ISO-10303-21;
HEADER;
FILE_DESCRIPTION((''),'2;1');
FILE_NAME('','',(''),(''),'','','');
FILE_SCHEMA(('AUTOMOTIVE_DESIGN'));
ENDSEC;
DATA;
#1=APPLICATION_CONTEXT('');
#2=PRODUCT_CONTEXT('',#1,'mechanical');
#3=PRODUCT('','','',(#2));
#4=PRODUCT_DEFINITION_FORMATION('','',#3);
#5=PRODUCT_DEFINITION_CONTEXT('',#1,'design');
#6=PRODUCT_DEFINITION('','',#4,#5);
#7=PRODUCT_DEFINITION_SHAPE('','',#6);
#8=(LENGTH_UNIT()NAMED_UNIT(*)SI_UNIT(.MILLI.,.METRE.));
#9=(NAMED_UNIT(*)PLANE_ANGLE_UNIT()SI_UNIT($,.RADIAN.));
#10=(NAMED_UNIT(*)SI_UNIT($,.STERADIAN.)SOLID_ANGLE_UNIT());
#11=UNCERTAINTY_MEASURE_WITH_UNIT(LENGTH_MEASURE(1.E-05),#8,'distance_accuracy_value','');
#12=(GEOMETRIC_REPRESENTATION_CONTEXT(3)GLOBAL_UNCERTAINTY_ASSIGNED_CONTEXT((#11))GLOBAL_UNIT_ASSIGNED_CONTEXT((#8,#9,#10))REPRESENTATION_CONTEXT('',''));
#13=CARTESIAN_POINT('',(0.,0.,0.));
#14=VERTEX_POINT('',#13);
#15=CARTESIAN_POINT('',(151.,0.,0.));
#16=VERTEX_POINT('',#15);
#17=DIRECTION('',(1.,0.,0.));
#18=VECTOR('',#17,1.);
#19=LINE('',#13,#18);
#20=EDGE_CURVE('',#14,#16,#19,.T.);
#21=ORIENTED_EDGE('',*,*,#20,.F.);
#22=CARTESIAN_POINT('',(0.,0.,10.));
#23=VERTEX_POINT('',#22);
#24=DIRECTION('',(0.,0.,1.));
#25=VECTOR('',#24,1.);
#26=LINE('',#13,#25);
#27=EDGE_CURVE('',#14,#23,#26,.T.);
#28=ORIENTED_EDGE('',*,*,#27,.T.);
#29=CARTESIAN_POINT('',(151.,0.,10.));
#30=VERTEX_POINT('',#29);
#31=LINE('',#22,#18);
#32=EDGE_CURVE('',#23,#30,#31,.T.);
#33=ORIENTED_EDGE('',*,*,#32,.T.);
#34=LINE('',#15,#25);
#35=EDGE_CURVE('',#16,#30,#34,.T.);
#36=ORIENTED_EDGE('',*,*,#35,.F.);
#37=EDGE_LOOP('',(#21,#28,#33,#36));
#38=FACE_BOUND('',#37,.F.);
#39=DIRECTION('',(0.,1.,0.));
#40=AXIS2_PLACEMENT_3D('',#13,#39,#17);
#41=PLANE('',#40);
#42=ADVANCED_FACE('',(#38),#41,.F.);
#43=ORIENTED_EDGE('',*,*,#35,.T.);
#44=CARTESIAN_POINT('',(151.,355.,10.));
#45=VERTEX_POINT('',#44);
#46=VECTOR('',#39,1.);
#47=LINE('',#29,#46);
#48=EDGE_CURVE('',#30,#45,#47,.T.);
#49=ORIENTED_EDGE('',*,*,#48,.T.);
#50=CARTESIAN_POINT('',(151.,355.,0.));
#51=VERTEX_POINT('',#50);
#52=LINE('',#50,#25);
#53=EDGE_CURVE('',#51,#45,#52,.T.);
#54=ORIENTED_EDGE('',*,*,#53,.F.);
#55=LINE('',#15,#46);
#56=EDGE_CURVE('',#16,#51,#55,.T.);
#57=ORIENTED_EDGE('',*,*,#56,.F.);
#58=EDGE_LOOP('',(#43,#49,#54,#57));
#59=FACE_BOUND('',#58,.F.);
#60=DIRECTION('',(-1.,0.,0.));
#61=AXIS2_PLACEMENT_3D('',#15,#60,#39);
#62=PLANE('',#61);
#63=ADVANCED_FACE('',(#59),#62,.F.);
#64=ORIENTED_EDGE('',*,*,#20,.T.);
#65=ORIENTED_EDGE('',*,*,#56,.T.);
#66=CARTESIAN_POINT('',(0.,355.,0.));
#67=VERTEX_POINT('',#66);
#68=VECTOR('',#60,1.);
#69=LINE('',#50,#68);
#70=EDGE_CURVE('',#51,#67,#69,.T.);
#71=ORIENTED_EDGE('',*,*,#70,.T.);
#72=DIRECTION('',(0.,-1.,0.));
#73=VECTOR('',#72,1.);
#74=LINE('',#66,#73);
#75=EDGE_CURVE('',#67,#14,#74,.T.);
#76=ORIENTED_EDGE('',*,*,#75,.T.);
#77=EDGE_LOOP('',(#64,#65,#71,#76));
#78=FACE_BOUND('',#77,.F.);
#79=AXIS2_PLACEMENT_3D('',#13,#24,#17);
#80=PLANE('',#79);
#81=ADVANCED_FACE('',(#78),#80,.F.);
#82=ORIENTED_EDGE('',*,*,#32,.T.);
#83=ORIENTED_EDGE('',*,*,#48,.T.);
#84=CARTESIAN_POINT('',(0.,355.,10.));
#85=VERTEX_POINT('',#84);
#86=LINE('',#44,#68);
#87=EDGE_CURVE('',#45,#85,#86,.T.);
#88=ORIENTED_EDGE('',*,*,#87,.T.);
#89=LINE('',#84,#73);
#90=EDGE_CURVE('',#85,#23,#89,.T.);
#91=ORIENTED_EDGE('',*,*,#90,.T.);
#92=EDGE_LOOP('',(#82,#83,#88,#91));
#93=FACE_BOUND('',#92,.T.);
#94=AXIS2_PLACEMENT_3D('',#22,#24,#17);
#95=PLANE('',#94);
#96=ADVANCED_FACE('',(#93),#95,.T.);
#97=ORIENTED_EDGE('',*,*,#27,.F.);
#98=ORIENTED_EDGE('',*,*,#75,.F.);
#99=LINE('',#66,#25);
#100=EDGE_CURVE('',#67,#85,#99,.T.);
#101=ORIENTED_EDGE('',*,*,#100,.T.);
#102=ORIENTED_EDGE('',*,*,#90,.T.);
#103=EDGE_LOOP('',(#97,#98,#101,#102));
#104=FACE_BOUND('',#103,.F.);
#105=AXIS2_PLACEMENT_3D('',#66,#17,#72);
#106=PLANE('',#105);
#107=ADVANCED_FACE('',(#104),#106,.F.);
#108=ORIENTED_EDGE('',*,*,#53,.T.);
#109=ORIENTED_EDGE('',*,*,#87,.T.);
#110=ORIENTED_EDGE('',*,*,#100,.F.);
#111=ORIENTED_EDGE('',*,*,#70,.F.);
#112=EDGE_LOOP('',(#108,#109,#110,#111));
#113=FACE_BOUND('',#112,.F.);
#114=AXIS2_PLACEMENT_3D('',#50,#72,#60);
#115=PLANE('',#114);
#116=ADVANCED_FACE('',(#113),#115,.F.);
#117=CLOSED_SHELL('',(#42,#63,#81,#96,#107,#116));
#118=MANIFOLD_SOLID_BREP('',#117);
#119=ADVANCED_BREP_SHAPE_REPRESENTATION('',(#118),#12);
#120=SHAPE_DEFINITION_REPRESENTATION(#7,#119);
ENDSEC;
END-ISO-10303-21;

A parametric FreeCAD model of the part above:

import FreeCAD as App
import Part
import Sketcher
Q = App.Units.Quantity

doc = App.newDocument("Part")
body = doc.addObject("PartDesign::Body", "Body")

# Sketch on XY plane
sketch1 = body.newObject("Sketcher::SketchObject", "Sketch")
sketch1.AttachmentSupport = (doc.getObject("XY_Plane"), [""])
sketch1.MapMode = "FlatFace"
sketch1.addGeometry([
    Part.LineSegment(App.Vector(0, 355, 0), App.Vector(0, 0, 0)),
    Part.LineSegment(App.Vector(0, 0, 0), App.Vector(151, 0, 0)),
    Part.LineSegment(App.Vector(151, 0, 0), App.Vector(151, 355, 0)),
    Part.LineSegment(App.Vector(151, 355, 0), App.Vector(0, 355, 0)),
], False)
sketch1.addConstraint([
    Sketcher.Constraint("Coincident", 0, 2, 1, 1),
    Sketcher.Constraint("Coincident", 1, 2, 2, 1),
    Sketcher.Constraint("Coincident", 2, 2, 3, 1),
    Sketcher.Constraint("Coincident", 3, 2, 0, 1),
    Sketcher.Constraint("Vertical", 0),
    Sketcher.Constraint("Horizontal", 1),
    Sketcher.Constraint("Vertical", 2),
    Sketcher.Constraint("Horizontal", 3),
    Sketcher.Constraint("Coincident", 0, 2, -1, 1),
    Sketcher.Constraint("DistanceX", 1, 1, 1, 2, Q("151 mm")),
    Sketcher.Constraint("DistanceY", 0, 2, 0, 1, Q("355 mm")),
])
pad1 = body.newObject("PartDesign::Pad", "Pad")
pad1.Profile = sketch1
pad1.Length = 10

doc.recompute()
